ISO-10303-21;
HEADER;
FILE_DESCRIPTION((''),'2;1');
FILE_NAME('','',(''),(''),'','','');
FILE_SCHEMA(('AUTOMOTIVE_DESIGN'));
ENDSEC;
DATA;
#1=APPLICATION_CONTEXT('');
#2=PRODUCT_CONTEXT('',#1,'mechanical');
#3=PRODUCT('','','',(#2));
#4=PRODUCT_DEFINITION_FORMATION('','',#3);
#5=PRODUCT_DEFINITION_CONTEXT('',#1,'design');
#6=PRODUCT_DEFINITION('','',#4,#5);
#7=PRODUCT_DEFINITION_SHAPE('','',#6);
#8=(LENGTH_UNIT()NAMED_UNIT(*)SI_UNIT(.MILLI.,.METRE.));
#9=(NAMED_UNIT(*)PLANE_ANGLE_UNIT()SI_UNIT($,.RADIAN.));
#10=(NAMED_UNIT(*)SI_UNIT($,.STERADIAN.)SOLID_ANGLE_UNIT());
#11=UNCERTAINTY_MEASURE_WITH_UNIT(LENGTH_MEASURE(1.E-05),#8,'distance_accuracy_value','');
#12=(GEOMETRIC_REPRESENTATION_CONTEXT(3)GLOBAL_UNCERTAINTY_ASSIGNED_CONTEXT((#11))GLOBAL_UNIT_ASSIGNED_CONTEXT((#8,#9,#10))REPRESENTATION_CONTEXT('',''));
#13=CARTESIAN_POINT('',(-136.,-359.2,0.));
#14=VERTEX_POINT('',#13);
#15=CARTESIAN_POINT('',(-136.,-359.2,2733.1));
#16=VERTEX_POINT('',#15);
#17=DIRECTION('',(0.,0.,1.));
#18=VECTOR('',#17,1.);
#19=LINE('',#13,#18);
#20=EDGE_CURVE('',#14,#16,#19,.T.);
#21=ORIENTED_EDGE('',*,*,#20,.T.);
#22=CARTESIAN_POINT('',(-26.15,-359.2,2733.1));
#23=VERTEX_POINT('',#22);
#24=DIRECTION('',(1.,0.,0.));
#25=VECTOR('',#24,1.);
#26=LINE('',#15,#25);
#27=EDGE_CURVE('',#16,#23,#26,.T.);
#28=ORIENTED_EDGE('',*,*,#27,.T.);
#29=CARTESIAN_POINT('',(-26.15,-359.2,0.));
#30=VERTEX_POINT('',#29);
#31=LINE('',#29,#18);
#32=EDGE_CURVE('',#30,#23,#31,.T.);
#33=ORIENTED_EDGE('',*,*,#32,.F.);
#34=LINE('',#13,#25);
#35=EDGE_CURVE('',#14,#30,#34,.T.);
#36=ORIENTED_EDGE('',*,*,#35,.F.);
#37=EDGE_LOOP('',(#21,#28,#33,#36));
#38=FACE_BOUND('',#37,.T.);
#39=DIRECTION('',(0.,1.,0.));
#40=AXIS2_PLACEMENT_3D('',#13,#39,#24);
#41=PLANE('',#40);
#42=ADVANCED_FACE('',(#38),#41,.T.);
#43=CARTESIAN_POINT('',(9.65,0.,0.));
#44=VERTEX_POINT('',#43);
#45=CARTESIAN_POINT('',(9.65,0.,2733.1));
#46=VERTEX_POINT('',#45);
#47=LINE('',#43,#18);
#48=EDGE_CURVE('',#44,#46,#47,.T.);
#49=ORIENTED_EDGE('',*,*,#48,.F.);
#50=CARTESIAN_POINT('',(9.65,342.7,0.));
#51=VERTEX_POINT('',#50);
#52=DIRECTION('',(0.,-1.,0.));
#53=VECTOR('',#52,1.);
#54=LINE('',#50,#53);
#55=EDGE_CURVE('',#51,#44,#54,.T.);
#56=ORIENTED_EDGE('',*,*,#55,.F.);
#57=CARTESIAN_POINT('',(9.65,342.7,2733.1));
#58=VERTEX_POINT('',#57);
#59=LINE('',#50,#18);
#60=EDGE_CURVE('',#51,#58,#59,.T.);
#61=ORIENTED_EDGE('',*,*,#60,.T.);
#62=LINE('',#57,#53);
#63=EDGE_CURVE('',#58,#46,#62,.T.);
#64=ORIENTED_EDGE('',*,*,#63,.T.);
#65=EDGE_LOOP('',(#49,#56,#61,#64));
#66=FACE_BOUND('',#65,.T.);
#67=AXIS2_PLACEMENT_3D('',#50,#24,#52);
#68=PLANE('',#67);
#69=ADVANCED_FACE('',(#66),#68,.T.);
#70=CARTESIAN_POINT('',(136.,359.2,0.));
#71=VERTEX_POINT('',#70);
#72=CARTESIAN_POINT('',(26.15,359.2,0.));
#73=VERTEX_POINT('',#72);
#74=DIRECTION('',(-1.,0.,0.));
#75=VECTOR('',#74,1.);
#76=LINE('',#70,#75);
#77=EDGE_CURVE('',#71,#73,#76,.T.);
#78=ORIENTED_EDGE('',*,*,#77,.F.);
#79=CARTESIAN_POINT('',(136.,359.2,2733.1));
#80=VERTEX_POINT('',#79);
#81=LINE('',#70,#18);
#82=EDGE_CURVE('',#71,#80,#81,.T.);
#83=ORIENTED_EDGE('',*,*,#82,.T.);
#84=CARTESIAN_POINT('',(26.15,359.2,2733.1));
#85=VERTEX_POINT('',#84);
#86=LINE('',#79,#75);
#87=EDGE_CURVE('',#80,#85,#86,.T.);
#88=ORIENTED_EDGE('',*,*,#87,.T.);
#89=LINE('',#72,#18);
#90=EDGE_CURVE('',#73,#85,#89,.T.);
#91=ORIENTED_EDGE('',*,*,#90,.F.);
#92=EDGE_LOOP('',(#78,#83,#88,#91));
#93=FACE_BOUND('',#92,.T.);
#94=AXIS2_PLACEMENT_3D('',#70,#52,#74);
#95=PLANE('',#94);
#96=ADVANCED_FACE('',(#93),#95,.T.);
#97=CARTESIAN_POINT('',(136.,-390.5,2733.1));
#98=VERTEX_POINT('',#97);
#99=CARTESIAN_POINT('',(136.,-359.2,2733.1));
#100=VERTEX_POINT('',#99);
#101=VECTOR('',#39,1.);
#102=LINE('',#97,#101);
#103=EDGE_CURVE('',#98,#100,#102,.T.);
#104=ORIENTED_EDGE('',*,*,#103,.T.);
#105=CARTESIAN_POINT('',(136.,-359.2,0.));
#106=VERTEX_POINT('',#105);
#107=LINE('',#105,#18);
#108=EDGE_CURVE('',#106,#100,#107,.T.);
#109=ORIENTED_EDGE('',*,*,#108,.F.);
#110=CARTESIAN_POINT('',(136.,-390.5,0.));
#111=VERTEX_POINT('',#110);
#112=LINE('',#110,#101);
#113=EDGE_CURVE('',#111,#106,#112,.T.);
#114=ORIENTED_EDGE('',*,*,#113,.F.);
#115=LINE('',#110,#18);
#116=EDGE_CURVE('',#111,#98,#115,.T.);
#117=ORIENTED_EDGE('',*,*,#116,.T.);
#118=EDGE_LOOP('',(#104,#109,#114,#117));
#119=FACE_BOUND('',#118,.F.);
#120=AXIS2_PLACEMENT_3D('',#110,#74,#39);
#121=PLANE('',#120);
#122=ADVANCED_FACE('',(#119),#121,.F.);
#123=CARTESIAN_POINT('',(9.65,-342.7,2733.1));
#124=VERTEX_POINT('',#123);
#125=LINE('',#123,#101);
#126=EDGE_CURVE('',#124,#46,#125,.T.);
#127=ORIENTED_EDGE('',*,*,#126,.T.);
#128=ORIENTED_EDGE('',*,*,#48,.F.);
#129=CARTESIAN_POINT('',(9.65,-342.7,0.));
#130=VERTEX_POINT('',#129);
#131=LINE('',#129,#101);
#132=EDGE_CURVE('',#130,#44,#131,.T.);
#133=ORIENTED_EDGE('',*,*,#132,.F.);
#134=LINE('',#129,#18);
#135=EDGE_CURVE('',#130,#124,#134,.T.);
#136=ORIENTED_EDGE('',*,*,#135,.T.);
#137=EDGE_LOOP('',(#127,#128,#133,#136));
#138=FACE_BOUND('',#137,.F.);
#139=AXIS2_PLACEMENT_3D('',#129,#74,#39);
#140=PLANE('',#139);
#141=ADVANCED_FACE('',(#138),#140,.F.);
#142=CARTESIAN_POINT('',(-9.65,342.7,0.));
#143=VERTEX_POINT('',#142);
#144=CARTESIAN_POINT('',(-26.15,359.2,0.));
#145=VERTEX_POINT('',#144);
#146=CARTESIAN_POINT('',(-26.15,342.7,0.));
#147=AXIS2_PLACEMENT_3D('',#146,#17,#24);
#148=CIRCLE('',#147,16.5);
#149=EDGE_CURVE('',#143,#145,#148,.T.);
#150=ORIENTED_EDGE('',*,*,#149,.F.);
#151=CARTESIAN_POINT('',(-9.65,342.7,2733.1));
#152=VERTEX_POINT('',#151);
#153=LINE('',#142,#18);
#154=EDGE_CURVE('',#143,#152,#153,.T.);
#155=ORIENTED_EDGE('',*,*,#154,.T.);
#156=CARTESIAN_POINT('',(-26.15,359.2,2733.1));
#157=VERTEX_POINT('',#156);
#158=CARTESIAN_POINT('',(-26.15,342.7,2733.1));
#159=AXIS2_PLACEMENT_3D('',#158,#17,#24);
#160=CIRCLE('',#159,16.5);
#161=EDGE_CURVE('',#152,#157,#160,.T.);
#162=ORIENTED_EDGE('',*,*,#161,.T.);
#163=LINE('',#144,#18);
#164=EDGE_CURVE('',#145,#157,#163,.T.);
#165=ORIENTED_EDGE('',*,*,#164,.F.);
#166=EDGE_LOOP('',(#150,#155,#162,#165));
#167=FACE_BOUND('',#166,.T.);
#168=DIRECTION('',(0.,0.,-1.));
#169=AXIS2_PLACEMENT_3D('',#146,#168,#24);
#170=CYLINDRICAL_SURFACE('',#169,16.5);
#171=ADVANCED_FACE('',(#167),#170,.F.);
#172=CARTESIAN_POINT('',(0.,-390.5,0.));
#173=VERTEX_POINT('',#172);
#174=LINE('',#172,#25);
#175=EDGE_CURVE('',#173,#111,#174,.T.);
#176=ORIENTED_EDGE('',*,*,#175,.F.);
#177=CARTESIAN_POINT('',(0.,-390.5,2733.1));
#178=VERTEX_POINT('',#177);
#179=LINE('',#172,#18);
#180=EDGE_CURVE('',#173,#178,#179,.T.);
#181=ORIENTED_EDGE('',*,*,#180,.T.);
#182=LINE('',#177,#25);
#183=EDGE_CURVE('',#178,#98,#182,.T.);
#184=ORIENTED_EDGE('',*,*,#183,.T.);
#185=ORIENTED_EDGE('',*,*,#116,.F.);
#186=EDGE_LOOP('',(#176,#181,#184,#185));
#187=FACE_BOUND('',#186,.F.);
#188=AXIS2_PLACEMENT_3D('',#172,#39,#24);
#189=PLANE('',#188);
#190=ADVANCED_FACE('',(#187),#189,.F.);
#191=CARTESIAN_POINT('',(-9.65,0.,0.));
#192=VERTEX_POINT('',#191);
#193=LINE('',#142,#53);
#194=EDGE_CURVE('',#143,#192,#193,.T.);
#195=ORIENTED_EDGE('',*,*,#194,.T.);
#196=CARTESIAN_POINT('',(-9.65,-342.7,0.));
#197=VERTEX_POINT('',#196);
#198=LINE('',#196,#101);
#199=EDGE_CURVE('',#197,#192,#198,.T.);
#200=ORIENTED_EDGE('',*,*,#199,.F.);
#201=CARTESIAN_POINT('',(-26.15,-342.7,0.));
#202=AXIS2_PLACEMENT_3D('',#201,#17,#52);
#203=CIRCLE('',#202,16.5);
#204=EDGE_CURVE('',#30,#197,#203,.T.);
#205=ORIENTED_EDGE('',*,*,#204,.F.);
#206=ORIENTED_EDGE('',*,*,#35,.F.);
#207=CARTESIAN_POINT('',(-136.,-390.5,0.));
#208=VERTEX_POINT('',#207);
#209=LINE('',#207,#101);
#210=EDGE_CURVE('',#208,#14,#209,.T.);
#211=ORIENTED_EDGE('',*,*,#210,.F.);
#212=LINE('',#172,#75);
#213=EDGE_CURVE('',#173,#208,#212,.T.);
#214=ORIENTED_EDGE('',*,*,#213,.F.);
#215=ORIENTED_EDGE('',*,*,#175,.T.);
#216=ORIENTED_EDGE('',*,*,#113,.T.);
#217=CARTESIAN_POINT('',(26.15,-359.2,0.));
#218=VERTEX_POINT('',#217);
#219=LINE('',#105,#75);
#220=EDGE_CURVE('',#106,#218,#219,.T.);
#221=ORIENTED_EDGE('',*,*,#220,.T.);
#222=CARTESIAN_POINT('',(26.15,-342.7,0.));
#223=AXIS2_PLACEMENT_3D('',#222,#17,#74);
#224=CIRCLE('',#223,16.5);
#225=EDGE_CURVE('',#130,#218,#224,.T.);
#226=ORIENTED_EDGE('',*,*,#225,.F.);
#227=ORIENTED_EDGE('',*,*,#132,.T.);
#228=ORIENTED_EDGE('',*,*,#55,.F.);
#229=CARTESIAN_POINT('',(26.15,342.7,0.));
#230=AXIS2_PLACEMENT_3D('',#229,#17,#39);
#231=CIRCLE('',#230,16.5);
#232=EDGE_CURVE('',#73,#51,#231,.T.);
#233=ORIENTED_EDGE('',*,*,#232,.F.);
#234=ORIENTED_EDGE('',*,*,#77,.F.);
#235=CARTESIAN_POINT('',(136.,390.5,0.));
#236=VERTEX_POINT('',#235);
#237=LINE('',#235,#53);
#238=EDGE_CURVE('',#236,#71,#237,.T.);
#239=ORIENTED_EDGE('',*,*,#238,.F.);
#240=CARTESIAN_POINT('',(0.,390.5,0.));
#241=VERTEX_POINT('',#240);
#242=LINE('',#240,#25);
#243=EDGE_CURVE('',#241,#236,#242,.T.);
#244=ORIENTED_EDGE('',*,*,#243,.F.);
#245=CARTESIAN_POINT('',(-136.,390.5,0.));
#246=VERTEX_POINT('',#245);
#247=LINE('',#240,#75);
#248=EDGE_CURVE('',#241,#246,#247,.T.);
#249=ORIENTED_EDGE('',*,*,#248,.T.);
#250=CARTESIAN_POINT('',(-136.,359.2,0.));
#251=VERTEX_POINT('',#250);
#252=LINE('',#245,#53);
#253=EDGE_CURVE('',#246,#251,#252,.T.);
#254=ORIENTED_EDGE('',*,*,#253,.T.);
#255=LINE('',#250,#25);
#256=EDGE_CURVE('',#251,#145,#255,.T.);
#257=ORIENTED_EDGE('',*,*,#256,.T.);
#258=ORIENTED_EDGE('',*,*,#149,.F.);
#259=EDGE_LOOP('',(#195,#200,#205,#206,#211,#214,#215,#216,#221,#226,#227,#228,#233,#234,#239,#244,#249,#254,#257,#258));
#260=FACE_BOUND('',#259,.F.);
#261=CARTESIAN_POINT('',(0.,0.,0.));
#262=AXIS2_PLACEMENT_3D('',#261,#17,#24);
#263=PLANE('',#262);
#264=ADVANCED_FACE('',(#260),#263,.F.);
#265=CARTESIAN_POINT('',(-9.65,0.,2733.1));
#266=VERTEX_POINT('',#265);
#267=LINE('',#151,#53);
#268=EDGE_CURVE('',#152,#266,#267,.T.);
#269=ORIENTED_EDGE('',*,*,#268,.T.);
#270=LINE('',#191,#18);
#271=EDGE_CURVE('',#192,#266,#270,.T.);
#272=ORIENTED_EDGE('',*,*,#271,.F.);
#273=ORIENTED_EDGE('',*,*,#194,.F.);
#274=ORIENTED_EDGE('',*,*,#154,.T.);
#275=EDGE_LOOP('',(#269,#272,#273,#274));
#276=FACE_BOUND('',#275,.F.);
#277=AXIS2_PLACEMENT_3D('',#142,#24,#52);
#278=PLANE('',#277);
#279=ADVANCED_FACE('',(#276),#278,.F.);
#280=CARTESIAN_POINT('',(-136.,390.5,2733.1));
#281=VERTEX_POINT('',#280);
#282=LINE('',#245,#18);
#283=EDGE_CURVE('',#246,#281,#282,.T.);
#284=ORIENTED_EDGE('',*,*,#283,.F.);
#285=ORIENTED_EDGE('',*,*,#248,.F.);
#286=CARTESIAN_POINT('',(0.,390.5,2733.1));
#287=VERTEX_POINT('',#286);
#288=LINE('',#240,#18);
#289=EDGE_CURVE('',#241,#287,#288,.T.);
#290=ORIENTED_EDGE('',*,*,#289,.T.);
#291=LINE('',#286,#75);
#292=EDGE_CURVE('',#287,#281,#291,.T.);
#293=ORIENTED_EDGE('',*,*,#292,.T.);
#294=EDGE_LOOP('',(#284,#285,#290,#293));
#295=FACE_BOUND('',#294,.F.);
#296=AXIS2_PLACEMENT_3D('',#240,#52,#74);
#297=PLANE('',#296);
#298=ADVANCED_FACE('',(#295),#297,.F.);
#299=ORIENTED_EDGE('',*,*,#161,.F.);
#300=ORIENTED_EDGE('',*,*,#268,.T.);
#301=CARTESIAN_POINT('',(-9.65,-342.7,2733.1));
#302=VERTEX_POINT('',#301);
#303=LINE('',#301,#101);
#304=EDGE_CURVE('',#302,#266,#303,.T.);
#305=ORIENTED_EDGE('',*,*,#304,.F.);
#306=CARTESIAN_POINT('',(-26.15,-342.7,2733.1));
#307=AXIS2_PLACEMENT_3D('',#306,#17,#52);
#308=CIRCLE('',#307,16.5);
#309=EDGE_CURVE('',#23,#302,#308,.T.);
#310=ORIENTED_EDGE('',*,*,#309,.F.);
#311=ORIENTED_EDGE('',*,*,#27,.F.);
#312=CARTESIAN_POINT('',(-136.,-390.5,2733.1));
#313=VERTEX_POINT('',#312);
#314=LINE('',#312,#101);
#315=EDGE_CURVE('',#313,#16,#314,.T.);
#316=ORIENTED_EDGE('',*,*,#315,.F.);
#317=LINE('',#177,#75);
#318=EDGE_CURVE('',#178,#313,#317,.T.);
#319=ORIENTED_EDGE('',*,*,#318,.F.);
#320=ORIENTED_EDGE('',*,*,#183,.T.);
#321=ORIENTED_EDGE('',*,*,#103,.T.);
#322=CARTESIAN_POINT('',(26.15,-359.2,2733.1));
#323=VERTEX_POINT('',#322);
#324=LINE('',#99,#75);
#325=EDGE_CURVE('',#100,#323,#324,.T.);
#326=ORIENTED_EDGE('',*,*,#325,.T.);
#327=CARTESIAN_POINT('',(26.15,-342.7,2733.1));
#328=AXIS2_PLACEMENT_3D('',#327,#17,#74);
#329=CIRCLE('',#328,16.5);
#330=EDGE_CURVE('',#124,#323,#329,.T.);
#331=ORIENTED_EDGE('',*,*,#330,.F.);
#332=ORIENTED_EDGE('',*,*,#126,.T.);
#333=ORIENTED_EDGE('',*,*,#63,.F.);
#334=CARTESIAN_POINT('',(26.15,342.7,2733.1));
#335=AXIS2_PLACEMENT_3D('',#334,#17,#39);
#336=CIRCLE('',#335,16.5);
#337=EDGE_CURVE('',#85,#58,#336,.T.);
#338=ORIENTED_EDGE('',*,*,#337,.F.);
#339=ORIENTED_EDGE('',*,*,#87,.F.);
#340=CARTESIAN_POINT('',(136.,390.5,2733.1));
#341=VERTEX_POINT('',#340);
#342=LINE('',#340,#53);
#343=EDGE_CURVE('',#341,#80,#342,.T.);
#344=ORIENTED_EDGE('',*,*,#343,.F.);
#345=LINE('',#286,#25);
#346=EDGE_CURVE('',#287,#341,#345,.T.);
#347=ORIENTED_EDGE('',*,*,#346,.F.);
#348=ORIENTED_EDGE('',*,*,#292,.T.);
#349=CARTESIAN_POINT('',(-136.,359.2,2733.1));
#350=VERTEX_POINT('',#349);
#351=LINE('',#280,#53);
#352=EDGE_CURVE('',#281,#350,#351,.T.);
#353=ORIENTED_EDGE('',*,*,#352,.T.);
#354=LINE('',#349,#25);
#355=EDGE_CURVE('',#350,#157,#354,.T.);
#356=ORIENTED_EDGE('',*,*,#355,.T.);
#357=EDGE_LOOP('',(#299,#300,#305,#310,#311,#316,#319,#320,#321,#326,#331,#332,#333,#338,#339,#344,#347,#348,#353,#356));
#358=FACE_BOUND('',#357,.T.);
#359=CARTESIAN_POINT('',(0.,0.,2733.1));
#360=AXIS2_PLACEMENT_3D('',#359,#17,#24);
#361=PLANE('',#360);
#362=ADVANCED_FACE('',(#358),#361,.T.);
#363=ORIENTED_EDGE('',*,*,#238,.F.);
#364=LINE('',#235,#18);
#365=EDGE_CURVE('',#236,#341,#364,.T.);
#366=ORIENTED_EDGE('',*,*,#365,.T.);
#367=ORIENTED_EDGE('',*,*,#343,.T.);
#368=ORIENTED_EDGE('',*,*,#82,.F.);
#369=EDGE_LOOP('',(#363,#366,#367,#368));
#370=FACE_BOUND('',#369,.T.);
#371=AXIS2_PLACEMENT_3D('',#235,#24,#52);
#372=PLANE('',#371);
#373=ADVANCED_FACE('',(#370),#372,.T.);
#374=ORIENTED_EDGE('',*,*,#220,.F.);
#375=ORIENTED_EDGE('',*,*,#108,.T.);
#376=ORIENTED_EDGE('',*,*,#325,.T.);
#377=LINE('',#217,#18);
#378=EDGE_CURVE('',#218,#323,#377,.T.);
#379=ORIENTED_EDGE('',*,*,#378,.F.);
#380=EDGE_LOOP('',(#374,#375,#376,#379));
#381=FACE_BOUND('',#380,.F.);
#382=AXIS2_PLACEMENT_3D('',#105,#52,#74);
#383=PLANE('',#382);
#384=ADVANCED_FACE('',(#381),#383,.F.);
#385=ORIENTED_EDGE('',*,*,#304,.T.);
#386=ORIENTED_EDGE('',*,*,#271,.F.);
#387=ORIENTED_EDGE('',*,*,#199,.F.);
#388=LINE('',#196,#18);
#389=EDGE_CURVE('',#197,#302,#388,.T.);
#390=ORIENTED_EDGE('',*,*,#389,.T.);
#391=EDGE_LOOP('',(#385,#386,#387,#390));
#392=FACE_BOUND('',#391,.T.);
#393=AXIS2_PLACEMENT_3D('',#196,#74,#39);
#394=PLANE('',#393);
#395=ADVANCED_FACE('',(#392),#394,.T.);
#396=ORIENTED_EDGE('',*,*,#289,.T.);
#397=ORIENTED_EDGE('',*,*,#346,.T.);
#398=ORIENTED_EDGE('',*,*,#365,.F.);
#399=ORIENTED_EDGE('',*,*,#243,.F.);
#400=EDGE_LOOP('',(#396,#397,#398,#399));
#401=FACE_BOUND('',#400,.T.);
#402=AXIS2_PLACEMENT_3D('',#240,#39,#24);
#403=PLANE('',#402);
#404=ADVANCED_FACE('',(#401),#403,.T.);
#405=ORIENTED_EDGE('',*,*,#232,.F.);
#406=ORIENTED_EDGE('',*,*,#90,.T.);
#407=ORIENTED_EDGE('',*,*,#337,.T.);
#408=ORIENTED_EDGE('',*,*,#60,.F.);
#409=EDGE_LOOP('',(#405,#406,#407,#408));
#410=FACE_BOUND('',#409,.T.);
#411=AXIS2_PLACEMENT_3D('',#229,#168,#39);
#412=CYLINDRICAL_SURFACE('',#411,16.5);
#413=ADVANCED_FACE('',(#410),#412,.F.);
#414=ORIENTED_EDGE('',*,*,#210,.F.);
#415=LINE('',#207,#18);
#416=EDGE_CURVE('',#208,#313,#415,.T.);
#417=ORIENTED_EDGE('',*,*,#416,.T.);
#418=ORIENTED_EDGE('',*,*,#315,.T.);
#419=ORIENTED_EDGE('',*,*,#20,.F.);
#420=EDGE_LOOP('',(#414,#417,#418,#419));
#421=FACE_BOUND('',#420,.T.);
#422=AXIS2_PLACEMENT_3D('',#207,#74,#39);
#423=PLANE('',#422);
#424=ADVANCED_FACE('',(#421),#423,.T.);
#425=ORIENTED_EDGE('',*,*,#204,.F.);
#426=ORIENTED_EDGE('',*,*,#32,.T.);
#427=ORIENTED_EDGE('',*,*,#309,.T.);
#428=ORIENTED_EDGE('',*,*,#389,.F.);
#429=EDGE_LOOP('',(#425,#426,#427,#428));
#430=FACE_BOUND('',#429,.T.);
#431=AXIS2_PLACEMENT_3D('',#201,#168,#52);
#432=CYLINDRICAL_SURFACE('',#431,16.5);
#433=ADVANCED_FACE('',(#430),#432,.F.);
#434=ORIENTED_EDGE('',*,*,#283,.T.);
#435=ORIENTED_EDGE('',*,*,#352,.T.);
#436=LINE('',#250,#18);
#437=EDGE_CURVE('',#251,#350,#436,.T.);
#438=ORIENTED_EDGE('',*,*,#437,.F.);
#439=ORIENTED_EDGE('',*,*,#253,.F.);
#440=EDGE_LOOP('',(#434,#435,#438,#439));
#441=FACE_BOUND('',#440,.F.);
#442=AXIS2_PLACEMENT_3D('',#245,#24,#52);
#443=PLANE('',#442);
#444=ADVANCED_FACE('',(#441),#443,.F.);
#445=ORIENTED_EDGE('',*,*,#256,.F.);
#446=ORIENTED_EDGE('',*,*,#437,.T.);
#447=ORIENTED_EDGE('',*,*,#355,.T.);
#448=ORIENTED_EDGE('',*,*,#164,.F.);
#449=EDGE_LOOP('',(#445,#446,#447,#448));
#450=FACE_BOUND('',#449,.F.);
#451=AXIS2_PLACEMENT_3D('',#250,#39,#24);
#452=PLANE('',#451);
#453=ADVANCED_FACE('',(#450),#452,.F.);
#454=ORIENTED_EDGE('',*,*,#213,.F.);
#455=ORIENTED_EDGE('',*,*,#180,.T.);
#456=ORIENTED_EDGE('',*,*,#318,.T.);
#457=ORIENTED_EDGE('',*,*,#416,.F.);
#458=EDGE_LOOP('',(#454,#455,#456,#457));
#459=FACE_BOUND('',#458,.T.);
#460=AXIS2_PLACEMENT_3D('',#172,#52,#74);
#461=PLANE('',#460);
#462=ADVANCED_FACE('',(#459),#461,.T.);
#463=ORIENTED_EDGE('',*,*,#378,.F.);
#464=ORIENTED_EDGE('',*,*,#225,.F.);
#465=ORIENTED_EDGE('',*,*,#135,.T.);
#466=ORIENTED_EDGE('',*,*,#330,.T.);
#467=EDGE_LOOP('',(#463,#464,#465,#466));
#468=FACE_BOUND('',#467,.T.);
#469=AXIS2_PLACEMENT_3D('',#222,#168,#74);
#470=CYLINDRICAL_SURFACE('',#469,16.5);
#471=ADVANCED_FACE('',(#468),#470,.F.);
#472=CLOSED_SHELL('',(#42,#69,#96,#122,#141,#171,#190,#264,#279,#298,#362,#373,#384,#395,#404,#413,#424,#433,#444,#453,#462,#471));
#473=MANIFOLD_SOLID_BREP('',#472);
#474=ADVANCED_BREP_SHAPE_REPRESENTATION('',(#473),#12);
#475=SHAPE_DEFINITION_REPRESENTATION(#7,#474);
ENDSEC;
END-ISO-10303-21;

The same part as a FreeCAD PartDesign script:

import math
import FreeCAD as App
import Part
import Sketcher

V = App.Vector

doc = App.newDocument("Part")
body = doc.addObject("PartDesign::Body", "Body")

# Sketch on XY plane
sketch1 = body.newObject("Sketcher::SketchObject", "Sketch")
sketch1.AttachmentSupport = (doc.getObject("XY_Plane"), [""])
sketch1.MapMode = "FlatFace"
sketch1.addGeometry([
    Part.LineSegment(V(-136, -359, 0), V(-136, -390, 0)),  # 0
    Part.LineSegment(V(-136, -390, 0), V(136, -390, 0)),  # 1
    Part.LineSegment(V(136, -390, 0), V(136, -359, 0)),  # 2
    Part.LineSegment(V(136, -359, 0), V(26, -359, 0)),  # 3
    Part.ArcOfCircle(Part.Circle(V(26, -343, 0), V(0, 0, 1), 16), math.radians(180), math.radians(270)),  # 4
    Part.LineSegment(V(10, -343, 0), V(10, 343, 0)),  # 5
    Part.ArcOfCircle(Part.Circle(V(26, 343, 0), V(0, 0, 1), 16), math.radians(90), math.radians(180)),  # 6
    Part.LineSegment(V(26, 359, 0), V(136, 359, 0)),  # 7
    Part.LineSegment(V(136, 359, 0), V(136, 390, 0)),  # 8
    Part.LineSegment(V(136, 390, 0), V(-136, 390, 0)),  # 9
    Part.LineSegment(V(-136, 390, 0), V(-136, 359, 0)),  # 10
    Part.LineSegment(V(-136, 359, 0), V(-26, 359, 0)),  # 11
    Part.ArcOfCircle(Part.Circle(V(-26, 343, 0), V(0, 0, 1), 16), math.radians(0), math.radians(90)),  # 12
    Part.LineSegment(V(-10, 343, 0), V(-10, -343, 0)),  # 13
    Part.ArcOfCircle(Part.Circle(V(-26, -343, 0), V(0, 0, 1), 16), math.radians(-90), math.radians(0)),  # 14
    Part.LineSegment(V(-26, -359, 0), V(-136, -359, 0)),  # 15
], False)
sketch1.addConstraint([
    Sketcher.Constraint("Coincident", 0, 2, 1, 1),
    Sketcher.Constraint("Coincident", 1, 2, 2, 1),
    Sketcher.Constraint("Coincident", 2, 2, 3, 1),
    Sketcher.Constraint("Tangent", 3, 2, 4, 2),
    Sketcher.Constraint("Tangent", 4, 1, 5, 1),
    Sketcher.Constraint("Tangent", 5, 2, 6, 2),
    Sketcher.Constraint("Tangent", 6, 1, 7, 1),
    Sketcher.Constraint("Coincident", 7, 2, 8, 1),
    Sketcher.Constraint("Coincident", 8, 2, 9, 1),
    Sketcher.Constraint("Coincident", 9, 2, 10, 1),
    Sketcher.Constraint("Coincident", 10, 2, 11, 1),
    Sketcher.Constraint("Tangent", 11, 2, 12, 2),
    Sketcher.Constraint("Tangent", 12, 1, 13, 1),
    Sketcher.Constraint("Tangent", 13, 2, 14, 2),
    Sketcher.Constraint("Tangent", 14, 1, 15, 1),
    Sketcher.Constraint("Coincident", 15, 2, 0, 1),
    Sketcher.Constraint("Vertical", 0),
    Sketcher.Constraint("Horizontal", 1),
    Sketcher.Constraint("Vertical", 2),
    Sketcher.Constraint("Horizontal", 3),
    Sketcher.Constraint("Vertical", 5),
    Sketcher.Constraint("Horizontal", 7),
    Sketcher.Constraint("Vertical", 8),
    Sketcher.Constraint("Horizontal", 9),
    Sketcher.Constraint("Vertical", 10),
    Sketcher.Constraint("Horizontal", 11),
    Sketcher.Constraint("Vertical", 13),
    Sketcher.Constraint("Horizontal", 15),
    Sketcher.Constraint("Equal", 4, 6),
    Sketcher.Constraint("Equal", 6, 12),
    Sketcher.Constraint("Equal", 12, 14),
    Sketcher.Constraint("Symmetric", 4, 3, 12, 3, -1, 1),
    Sketcher.Constraint("Symmetric", 0, 2, 8, 2, -1, 1),
    Sketcher.Constraint("Symmetric", 7, 2, 10, 2, -2),
    Sketcher.Constraint("Symmetric", 2, 2, 15, 2, -2),
    Sketcher.Constraint("Radius", 4, 16.5),
    Sketcher.Constraint("DistanceY", 0, 2, 0, 1, 31.3),
    Sketcher.Constraint("DistanceX", 0, 2, -1, 1, 136.0),
    Sketcher.Constraint("DistanceY", 0, 2, -1, 1, 390.5),
    Sketcher.Constraint("DistanceX", -1, 1, 4, 1, 9.65),
])
pad1 = body.newObject("PartDesign::Pad", "Pad")
pad1.Profile = sketch1
pad1.Length = 2733.1

doc.recompute()
